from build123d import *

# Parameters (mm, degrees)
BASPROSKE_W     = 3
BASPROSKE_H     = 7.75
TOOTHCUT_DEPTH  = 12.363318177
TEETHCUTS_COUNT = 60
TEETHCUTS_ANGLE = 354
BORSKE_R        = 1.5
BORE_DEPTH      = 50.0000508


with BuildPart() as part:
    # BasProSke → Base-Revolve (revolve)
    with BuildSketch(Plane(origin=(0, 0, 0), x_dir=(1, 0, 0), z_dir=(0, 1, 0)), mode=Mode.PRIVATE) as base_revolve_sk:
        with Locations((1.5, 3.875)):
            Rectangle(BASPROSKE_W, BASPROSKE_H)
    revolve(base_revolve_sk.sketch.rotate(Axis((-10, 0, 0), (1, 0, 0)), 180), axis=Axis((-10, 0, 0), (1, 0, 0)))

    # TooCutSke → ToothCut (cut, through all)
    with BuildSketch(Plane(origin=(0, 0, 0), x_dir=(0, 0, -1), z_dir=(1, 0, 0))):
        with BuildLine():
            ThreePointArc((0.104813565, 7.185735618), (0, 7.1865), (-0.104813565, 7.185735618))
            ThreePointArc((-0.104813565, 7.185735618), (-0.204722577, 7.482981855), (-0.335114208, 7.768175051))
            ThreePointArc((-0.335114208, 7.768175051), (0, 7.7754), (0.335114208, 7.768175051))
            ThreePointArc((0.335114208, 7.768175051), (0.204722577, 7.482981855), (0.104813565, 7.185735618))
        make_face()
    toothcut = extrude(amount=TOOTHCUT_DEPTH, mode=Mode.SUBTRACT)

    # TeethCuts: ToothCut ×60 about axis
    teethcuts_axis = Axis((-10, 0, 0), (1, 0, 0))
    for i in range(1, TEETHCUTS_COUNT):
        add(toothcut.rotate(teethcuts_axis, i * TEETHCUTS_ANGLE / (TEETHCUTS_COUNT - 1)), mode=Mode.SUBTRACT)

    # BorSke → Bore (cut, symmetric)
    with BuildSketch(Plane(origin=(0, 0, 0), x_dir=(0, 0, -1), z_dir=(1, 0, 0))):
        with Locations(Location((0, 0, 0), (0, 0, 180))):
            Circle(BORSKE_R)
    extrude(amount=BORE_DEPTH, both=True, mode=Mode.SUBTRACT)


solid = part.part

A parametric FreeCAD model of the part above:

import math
import FreeCAD as App
import Part
import Sketcher

V = App.Vector
Q = App.Units.Quantity


def add_polygon(sketch, points):
    """Adds a closed chain of lines whose ends are joined by coincident constraints."""
    first, n = sketch.GeometryCount, len(points)
    for a, b in zip(points, points[1:] + points[:1]):
        sketch.addGeometry(Part.LineSegment(App.Vector(*a, 0), App.Vector(*b, 0)), False)
    for i in range(n):
        sketch.addConstraint(Sketcher.Constraint("Coincident", first + i, 2, first + (i + 1) % n, 1))

doc = App.newDocument("Part")
params = doc.addObject("Spreadsheet::Sheet", "Params")
for row, (alias, value) in enumerate([
    ("sketch1_width", "3 mm"),
    ("sketch1_height", "7.75 mm"),
    ("revolution_angle", "360 deg"),
    ("sketch2_radius", "3 mm"),
    ("sketch3_diameter", "3 mm"),
    ("pocket2_length", "100.000102 mm"),
], start=1):
    params.set(f"A{row}", alias)
    params.set(f"B{row}", "=" + value)
    params.setAlias(f"B{row}", alias)

body = doc.addObject("PartDesign::Body", "Body")

sketch1 = doc.addObject("Sketcher::SketchObject", "Sketch")
body.addObject(sketch1)
sketch1.AttachmentSupport = (doc.XZ_Plane, [""])
sketch1.MapMode = "FlatFace"
add_polygon(sketch1, [(0, -7.8), (0, 0), (3, 0), (3, -7.8)])
sketch1.addConstraint(Sketcher.Constraint("Vertical", 0))
sketch1.addConstraint(Sketcher.Constraint("Horizontal", 1))
sketch1.addConstraint(Sketcher.Constraint("Vertical", 2))
sketch1.addConstraint(Sketcher.Constraint("Horizontal", 3))
sketch1.addConstraint(Sketcher.Constraint("Coincident", 0, 2, -1, 1))
sketch1.addConstraint(Sketcher.Constraint("DistanceX", 1, 1, 1, 2, Q("3 mm")))
sketch1.addConstraint(Sketcher.Constraint("DistanceY", 0, 1, 0, 2, Q("7.75 mm")))
sketch1.setExpression("Constraints[9]", "Params.sketch1_width")
sketch1.setExpression("Constraints[10]", "Params.sketch1_height")
revolution = doc.addObject("PartDesign::Revolution", "Revolution")
body.addObject(revolution)
revolution.Profile = sketch1
revolution.ReferenceAxis = (sketch1, ["H_Axis"])
revolution.setExpression("Angle", "Params.revolution_angle")

sketch2 = doc.addObject("Sketcher::SketchObject", "Sketch001")
body.addObject(sketch2)
sketch2.AttachmentSupport = (doc.YZ_Plane, [""])
sketch2.MapMode = "FlatFace"
sketch2.addGeometry(Part.ArcOfCircle(Part.Circle(V(0, 0, 0), V(0, 0, 1), 7.19), math.radians(-0.84), math.radians(0.84)), False)
sketch2.addGeometry(Part.ArcOfCircle(Part.Circle(V(6.38, -2.99, 0), V(0, 0, 1), 3), math.radians(62.43), math.radians(74.42)), False)
sketch2.addGeometry(Part.ArcOfCircle(Part.Circle(V(0, 0, 0), V(0, 0, 1), 7.78), math.radians(-2.47), math.radians(2.47)), False)
sketch2.addGeometry(Part.ArcOfCircle(Part.Circle(V(6.38, 2.99, 0), V(0, 0, 1), 3), math.radians(-74.42), math.radians(-62.43)), False)
sketch2.addConstraint(Sketcher.Constraint("Coincident", 0, 1, 1, 2))
sketch2.addConstraint(Sketcher.Constraint("Coincident", 1, 1, 2, 1))
sketch2.addConstraint(Sketcher.Constraint("Coincident", 2, 2, 3, 2))
sketch2.addConstraint(Sketcher.Constraint("Coincident", 3, 1, 0, 2))
sketch2.addConstraint(Sketcher.Constraint("Coincident", 0, 3, -1, 1))
sketch2.addConstraint(Sketcher.Constraint("Coincident", 2, 3, -1, 1))
sketch2.addConstraint(Sketcher.Constraint("Equal", 1, 3))
sketch2.addConstraint(Sketcher.Constraint("Symmetric", 1, 3, 3, 3, -1))
sketch2.addConstraint(Sketcher.Constraint("Radius", 1, Q("3 mm")))
sketch2.addConstraint(Sketcher.Constraint("Radius", 2, Q("7.7754 mm")))
sketch2.addConstraint(Sketcher.Constraint("Radius", 0, Q("7.186503 mm")))
sketch2.addConstraint(Sketcher.Constraint("DistanceY", 1, 3, 3, 3, Q("5.989098 mm")))
sketch2.addConstraint(Sketcher.Constraint("DistanceY", 1, 1, 0, 1, Q("0.230301 mm")))
sketch2.setExpression("Constraints[8]", "Params.sketch2_radius")
pocket1 = doc.addObject("PartDesign::Pocket", "Pocket")
body.addObject(pocket1)
pocket1.Profile = sketch2
pocket1.Type = "ThroughAll"
pocket1.Reversed = True
doc.recompute()

polarpattern = doc.addObject("PartDesign::PolarPattern", "PolarPattern")
body.addObject(polarpattern)
polarpattern.Originals = [pocket1]
polarpattern.Axis = (doc.X_Axis, [""])
polarpattern.Angle = 360
polarpattern.Occurrences = 60
body.Tip = polarpattern

sketch3 = doc.addObject("Sketcher::SketchObject", "Sketch002")
body.addObject(sketch3)
sketch3.AttachmentSupport = (doc.YZ_Plane, [""])
sketch3.MapMode = "FlatFace"
sketch3.addGeometry(Part.Circle(V(0, 0, 0), V(0, 0, 1), 1.5), False)
sketch3.addConstraint(Sketcher.Constraint("Coincident", 0, 3, -1, 1))
sketch3.addConstraint(Sketcher.Constraint("Diameter", 0, Q("3 mm")))
sketch3.setExpression("Constraints[1]", "Params.sketch3_diameter")
pocket2 = doc.addObject("PartDesign::Pocket", "Pocket001")
body.addObject(pocket2)
pocket2.Profile = sketch3
pocket2.setExpression("Length", "Params.pocket2_length")
pocket2.Midplane = True

doc.recompute()
